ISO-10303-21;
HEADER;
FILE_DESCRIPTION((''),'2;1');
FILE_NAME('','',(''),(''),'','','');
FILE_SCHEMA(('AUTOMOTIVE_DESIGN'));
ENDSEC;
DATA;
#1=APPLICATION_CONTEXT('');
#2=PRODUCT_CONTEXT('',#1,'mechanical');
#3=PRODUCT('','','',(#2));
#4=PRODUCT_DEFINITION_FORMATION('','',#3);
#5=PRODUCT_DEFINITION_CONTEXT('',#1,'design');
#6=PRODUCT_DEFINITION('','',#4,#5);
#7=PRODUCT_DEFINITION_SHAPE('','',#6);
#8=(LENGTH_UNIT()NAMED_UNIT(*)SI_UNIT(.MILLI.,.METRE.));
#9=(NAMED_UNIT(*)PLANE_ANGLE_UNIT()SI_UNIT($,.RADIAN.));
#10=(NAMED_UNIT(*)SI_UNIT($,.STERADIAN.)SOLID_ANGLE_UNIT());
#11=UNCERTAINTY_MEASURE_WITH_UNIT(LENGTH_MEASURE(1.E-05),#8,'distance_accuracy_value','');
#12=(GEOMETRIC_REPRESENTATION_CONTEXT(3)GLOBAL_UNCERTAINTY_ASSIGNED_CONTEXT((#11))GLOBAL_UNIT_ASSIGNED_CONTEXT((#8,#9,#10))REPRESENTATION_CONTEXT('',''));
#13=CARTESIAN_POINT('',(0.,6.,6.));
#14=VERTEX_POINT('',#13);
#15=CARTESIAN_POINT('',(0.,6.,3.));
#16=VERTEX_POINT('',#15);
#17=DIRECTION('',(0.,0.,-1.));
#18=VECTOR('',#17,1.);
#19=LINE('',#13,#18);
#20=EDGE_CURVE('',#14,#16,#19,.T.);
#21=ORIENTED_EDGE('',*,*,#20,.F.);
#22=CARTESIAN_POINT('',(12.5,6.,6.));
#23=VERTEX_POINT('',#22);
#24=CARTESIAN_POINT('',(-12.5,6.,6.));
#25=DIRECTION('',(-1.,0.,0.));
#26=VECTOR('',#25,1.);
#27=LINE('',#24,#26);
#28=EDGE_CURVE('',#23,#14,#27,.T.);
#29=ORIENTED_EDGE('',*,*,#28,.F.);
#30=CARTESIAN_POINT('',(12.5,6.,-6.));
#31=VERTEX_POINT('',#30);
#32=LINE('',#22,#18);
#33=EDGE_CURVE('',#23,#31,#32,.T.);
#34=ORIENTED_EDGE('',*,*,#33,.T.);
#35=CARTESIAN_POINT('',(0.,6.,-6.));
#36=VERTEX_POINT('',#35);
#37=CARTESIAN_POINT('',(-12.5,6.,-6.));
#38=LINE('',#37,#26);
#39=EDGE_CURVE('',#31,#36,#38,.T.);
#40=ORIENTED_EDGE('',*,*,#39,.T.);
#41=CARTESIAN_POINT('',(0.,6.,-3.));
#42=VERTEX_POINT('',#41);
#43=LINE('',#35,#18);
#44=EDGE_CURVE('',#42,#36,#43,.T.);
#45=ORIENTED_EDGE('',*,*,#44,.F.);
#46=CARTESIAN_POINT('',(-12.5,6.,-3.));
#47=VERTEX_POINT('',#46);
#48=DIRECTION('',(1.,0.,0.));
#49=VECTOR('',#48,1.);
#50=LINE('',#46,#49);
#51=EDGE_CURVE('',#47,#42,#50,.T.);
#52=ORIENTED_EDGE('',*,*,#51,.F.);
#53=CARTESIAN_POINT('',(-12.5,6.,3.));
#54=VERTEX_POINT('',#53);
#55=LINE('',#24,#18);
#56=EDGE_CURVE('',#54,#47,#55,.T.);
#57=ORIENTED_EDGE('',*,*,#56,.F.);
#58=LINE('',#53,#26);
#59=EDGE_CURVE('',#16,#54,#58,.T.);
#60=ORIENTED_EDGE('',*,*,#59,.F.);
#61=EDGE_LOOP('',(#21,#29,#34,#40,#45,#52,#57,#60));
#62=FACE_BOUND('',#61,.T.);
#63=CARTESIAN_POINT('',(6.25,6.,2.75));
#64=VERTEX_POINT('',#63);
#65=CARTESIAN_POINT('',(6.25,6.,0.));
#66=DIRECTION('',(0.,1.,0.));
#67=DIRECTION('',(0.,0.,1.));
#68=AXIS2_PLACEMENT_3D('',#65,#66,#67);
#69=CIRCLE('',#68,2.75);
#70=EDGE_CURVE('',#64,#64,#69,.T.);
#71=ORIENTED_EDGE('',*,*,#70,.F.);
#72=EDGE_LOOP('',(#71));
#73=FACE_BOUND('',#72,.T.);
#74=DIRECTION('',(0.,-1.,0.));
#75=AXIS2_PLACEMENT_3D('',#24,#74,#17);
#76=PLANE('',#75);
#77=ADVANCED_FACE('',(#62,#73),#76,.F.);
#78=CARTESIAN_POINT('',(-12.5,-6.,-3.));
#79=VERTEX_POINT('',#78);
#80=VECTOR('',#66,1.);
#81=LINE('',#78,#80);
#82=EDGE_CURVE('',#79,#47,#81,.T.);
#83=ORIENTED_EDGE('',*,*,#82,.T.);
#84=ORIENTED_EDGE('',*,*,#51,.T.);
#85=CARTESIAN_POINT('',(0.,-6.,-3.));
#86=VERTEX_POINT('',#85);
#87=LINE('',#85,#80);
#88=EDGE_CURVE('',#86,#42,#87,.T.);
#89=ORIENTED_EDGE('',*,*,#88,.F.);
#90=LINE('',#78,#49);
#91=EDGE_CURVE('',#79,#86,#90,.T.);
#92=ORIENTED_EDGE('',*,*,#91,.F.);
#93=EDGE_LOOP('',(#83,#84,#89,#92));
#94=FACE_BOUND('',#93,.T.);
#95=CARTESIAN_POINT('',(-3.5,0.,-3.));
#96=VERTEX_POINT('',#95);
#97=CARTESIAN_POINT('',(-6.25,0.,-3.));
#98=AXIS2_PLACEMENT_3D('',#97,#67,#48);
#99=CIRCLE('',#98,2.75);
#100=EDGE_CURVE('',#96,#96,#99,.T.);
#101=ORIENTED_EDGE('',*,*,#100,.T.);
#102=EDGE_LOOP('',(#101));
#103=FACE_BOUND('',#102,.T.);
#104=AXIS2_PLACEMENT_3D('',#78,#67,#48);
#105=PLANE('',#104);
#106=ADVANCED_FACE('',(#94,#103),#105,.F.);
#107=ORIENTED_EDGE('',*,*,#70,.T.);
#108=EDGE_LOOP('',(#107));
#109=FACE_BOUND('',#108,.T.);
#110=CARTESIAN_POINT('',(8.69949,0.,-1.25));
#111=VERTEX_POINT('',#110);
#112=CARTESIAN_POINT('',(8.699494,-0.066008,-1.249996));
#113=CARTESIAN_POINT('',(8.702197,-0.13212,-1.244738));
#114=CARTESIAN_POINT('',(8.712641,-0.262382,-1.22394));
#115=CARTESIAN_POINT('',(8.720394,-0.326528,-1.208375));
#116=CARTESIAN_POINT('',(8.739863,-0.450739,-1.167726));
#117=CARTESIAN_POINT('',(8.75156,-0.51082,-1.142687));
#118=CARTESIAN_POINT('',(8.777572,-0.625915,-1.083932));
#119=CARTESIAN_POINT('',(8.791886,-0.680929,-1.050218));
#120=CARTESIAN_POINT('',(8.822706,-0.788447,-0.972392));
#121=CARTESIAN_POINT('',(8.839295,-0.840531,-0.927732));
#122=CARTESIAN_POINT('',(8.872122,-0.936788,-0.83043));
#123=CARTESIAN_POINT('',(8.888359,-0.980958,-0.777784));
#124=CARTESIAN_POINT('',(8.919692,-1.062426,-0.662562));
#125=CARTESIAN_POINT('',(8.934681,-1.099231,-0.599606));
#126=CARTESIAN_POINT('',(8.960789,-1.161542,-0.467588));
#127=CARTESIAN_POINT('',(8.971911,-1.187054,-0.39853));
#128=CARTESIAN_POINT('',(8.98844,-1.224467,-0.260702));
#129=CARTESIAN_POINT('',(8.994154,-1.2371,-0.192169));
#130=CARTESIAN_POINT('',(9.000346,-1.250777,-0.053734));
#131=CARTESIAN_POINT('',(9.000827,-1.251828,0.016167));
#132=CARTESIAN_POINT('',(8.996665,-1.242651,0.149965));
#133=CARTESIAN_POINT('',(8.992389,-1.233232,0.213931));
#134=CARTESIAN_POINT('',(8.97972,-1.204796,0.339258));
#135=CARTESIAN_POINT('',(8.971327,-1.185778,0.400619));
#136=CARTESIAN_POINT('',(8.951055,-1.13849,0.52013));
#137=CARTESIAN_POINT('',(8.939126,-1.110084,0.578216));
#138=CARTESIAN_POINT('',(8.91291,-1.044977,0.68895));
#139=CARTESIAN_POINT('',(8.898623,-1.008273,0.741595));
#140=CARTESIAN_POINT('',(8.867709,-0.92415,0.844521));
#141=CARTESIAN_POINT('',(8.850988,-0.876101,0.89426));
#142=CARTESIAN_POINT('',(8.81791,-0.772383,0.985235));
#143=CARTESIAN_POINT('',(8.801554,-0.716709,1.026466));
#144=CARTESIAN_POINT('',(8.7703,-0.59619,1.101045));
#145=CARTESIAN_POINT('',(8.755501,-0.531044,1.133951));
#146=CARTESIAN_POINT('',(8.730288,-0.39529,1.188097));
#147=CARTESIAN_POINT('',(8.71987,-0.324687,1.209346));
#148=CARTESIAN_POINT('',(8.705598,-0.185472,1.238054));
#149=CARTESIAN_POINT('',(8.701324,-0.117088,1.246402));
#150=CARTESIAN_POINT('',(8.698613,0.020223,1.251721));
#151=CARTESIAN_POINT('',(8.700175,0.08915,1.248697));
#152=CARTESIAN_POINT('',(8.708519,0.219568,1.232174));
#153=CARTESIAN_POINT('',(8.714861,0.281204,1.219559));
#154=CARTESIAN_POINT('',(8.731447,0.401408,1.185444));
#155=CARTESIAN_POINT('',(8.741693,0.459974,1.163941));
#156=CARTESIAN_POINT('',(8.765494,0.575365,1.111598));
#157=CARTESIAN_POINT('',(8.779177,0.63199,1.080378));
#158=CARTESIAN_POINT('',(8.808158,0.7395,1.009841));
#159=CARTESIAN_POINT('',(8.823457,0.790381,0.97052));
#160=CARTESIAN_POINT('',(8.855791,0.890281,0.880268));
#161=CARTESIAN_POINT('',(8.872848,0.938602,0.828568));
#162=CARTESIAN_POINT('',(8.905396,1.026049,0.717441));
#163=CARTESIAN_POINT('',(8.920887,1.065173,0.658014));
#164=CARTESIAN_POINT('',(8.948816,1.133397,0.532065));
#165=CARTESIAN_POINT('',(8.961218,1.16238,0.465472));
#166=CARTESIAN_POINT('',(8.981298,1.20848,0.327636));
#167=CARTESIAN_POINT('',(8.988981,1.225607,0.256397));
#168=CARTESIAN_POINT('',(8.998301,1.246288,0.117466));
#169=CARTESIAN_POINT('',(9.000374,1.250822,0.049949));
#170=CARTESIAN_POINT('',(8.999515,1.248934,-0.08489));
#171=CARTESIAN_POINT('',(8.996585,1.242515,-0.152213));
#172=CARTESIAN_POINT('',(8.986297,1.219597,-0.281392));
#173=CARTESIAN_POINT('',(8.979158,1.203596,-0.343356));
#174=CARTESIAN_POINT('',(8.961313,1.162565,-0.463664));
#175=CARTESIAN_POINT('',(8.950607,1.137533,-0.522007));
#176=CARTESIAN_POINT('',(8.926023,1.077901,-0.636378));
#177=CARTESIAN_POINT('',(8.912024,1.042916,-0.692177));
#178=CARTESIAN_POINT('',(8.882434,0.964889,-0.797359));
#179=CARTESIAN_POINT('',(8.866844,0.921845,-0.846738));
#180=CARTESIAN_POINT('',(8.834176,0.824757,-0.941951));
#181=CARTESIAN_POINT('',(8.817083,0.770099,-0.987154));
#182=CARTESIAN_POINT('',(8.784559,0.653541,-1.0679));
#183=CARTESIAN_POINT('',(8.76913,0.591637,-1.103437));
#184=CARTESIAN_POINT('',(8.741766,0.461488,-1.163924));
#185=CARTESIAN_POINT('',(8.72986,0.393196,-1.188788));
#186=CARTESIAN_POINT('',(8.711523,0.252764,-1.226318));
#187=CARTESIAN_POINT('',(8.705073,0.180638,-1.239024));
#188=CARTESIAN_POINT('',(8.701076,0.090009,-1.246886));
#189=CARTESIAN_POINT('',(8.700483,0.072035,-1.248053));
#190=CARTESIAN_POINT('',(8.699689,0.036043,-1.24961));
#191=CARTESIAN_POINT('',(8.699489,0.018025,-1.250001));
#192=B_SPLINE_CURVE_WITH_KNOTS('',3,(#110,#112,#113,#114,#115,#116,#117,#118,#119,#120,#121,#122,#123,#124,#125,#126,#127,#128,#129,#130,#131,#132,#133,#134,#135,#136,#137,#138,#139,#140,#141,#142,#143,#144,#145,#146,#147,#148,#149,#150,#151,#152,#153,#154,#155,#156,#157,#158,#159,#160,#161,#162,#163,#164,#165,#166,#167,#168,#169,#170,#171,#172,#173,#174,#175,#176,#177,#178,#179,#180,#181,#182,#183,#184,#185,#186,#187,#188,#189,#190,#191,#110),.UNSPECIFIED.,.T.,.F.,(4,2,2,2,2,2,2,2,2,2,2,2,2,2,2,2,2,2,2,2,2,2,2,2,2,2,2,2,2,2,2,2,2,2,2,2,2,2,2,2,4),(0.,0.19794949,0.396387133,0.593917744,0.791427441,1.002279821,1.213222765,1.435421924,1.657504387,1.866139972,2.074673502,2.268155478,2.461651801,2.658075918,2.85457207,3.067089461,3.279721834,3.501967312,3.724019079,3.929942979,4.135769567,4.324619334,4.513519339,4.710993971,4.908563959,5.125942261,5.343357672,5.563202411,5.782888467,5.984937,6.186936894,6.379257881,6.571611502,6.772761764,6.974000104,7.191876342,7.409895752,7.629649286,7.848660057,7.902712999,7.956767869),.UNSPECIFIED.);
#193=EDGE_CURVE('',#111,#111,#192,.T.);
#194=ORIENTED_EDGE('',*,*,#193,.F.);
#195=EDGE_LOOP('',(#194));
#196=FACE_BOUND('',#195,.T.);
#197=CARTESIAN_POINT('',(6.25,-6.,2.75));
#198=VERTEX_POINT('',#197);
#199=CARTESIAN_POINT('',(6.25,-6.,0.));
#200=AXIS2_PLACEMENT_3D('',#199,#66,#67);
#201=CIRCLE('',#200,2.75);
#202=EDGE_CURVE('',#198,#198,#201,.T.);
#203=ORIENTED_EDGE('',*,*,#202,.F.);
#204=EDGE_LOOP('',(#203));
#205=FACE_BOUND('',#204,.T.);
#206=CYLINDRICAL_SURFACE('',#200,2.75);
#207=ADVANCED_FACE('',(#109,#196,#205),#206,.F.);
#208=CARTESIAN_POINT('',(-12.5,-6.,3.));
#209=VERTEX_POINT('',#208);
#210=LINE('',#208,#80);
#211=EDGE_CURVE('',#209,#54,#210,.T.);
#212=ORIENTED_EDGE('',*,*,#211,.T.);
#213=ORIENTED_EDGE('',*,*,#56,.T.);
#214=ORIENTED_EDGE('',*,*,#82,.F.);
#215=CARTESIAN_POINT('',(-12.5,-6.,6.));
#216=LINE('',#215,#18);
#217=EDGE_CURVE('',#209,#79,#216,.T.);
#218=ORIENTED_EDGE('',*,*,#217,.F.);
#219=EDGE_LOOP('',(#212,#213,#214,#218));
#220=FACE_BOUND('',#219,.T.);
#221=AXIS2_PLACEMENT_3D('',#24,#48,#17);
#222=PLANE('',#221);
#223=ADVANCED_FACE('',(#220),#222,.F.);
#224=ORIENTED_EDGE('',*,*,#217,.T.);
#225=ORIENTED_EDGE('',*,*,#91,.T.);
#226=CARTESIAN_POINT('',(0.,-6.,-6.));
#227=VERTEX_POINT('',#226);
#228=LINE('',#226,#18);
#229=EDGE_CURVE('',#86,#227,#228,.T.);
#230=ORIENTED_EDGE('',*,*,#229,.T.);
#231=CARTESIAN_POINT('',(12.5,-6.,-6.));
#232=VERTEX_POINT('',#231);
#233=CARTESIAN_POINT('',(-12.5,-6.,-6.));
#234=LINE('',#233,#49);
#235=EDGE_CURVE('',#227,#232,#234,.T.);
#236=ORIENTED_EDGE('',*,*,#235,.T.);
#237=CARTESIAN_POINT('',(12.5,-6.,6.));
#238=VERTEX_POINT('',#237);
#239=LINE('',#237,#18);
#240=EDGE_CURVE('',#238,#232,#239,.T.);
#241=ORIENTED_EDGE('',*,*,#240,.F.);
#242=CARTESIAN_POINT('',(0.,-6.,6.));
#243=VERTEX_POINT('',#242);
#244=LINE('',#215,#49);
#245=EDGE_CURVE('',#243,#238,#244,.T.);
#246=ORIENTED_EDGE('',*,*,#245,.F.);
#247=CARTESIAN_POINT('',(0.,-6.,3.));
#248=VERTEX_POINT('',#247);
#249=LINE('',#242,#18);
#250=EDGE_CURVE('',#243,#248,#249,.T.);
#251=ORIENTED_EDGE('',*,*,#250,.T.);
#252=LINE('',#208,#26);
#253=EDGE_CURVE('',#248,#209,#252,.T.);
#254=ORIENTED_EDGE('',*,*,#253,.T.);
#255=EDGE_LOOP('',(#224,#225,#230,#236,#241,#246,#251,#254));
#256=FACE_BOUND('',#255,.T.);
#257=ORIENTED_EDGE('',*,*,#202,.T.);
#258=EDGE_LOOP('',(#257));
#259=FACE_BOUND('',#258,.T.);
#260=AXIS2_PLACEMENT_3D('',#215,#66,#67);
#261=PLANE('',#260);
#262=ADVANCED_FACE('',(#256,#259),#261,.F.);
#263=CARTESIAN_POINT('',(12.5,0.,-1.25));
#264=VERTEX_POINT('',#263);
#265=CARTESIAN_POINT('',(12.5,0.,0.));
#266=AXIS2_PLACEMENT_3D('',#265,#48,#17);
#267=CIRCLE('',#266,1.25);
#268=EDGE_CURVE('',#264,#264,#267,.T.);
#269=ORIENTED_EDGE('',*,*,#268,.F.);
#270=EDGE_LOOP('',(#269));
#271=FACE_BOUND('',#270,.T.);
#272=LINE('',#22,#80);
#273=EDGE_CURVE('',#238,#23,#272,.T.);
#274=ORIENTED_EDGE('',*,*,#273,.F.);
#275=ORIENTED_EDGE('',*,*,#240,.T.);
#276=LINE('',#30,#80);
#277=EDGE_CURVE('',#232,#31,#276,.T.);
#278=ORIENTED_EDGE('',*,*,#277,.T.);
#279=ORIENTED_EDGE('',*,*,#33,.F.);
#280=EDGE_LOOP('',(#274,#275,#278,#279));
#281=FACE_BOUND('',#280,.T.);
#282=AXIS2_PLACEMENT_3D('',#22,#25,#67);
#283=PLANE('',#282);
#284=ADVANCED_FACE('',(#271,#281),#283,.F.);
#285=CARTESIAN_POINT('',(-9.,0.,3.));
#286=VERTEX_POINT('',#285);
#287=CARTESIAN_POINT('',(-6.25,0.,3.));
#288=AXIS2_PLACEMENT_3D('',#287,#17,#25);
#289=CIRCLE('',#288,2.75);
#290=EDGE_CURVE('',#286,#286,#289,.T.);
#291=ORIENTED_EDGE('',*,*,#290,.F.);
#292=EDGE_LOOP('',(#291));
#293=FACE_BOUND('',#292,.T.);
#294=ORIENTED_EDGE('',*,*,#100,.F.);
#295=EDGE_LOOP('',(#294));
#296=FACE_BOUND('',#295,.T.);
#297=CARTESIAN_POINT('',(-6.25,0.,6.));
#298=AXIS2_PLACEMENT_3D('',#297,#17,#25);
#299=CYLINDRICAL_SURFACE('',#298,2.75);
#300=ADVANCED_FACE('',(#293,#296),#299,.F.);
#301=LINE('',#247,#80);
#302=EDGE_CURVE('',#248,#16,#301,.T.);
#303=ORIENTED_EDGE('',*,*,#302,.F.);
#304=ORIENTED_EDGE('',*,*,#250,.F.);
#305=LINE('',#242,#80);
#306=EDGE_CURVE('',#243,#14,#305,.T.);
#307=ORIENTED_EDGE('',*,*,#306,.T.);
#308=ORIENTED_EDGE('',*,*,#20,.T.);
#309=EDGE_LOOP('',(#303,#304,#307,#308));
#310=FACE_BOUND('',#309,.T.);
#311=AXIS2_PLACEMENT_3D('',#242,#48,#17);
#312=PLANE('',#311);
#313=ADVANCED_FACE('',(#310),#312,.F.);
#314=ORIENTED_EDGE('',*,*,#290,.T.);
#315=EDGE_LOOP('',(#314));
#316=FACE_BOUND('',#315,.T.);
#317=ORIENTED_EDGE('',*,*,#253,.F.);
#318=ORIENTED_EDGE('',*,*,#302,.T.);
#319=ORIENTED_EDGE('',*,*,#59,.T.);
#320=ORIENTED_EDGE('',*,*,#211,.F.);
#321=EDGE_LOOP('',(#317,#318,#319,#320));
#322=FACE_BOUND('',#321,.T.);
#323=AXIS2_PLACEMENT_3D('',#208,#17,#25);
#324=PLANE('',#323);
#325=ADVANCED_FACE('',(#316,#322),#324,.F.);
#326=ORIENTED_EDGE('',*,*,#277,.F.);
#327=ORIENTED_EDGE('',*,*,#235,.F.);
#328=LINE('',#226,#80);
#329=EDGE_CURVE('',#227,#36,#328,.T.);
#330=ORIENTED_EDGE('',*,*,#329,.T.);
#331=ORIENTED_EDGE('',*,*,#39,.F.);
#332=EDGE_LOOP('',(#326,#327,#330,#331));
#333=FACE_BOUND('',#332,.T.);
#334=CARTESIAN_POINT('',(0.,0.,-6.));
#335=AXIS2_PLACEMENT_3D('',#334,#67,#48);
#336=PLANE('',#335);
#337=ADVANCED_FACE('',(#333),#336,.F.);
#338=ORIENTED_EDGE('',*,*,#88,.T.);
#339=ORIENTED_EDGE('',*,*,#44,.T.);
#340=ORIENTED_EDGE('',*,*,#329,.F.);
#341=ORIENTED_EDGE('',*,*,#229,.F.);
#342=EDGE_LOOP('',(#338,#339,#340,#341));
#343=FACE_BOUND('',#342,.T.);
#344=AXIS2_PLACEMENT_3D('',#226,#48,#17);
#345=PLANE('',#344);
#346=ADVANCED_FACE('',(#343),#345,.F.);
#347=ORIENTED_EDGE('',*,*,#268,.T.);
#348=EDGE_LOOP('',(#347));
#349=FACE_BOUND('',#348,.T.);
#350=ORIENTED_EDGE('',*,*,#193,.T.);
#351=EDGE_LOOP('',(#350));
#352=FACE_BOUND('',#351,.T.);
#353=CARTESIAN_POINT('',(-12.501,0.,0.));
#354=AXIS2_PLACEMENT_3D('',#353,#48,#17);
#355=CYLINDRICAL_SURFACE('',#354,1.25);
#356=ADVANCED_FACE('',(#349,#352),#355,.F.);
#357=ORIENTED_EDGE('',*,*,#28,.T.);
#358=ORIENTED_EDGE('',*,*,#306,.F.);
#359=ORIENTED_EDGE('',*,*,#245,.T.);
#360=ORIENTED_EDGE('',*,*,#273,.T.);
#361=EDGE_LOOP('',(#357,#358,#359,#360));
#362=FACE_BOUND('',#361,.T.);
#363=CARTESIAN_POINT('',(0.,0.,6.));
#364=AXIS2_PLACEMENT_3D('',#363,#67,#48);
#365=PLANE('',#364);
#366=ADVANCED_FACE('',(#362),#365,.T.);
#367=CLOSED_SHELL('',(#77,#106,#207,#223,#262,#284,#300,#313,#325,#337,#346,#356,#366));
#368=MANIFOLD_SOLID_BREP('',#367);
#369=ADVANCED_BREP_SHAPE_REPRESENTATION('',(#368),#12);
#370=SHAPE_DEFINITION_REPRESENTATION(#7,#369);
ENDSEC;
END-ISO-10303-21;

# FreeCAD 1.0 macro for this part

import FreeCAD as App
import Part
import Sketcher
from FreeCAD import Vector
Q = App.Units.Quantity


def add_polygon(sketch, points):
    """Adds a closed chain of lines whose ends are joined by coincident constraints."""
    first, n = sketch.GeometryCount, len(points)
    for a, b in zip(points, points[1:] + points[:1]):
        sketch.addGeometry(Part.LineSegment(App.Vector(*a, 0), App.Vector(*b, 0)), False)
    for i in range(n):
        sketch.addConstraint(Sketcher.Constraint("Coincident", first + i, 2, first + (i + 1) % n, 1))

doc = App.newDocument("Part")
body = doc.addObject("PartDesign::Body", "Body")

sketch1 = body.newObject("Sketcher::SketchObject", "Sketch")
sketch1.AttachmentSupport = (doc.getObject("XY_Plane"), [""])
sketch1.MapMode = "FlatFace"
add_polygon(sketch1, [(-12.5, 6), (-12.5, -6), (12.5, -6), (12.5, 6)])
sketch1.addGeometry(Part.Circle(Vector(-6.2, 0, 0), Vector(0, 0, 1), 2.8), False)
sketch1.addConstraint([
    Sketcher.Constraint("Vertical", 0),
    Sketcher.Constraint("Horizontal", 1),
    Sketcher.Constraint("Vertical", 2),
    Sketcher.Constraint("Horizontal", 3),
    Sketcher.Constraint("Symmetric", 0, 2, 2, 2, -1, 1),
    Sketcher.Constraint("PointOnObject", 4, 3, -1),
    Sketcher.Constraint("Diameter", 4, Q("5.5 mm")),
    Sketcher.Constraint("DistanceX", 1, 1, 1, 2, Q("25 mm")),
    Sketcher.Constraint("DistanceY", 0, 2, 0, 1, Q("12 mm")),
    Sketcher.Constraint("DistanceX", 4, 3, -1, 1, Q("6.25 mm")),
])
pad1 = body.newObject("PartDesign::Pad", "Pad")
pad1.Profile = sketch1
pad1.Length = 12
pad1.Midplane = True

sketch2 = body.newObject("Sketcher::SketchObject", "Sketch001")
sketch2.AttachmentSupport = (doc.getObject("XZ_Plane"), [""])
sketch2.MapMode = "FlatFace"
sketch2.AttachmentOffset = App.Placement(Vector(0, 0, -6), App.Rotation())
sketch2.addGeometry(Part.Circle(Vector(6.2, 0, 0), Vector(0, 0, 1), 2.8), False)
add_polygon(sketch2, [(-12.5, -6), (-12.5, -3), (0, -3), (0, -6)])
add_polygon(sketch2, [(-12.5, 3), (-12.5, 6), (0, 6), (0, 3)])
sketch2.addConstraint([
    Sketcher.Constraint("Vertical", 1),
    Sketcher.Constraint("Horizontal", 2),
    Sketcher.Constraint("Vertical", 3),
    Sketcher.Constraint("Horizontal", 4),
    Sketcher.Constraint("Vertical", 5),
    Sketcher.Constraint("Horizontal", 6),
    Sketcher.Constraint("Vertical", 7),
    Sketcher.Constraint("Horizontal", 8),
    Sketcher.Constraint("Symmetric", 3, 2, 6, 2, -1, 1),
    Sketcher.Constraint("Symmetric", 2, 2, 7, 2, -1),
    Sketcher.Constraint("PointOnObject", 0, 3, -1),
    Sketcher.Constraint("Vertical", 4, 2, 5, 2),
    Sketcher.Constraint("Diameter", 0, Q("5.5 mm")),
    Sketcher.Constraint("DistanceY", 1, 1, 1, 2, Q("3 mm")),
    Sketcher.Constraint("DistanceX", 2, 1, 2, 2, Q("12.5 mm")),
    Sketcher.Constraint("DistanceY", 1, 2, -1, 1, Q("3 mm")),
    Sketcher.Constraint("DistanceX", -1, 1, 0, 3, Q("6.25 mm")),
])
pocket1 = body.newObject("PartDesign::Pocket", "Pocket")
pocket1.Profile = sketch2
pocket1.Type = "ThroughAll"
pocket1.Reversed = True

sketch3 = body.newObject("Sketcher::SketchObject", "Sketch002")
sketch3.AttachmentSupport = (doc.getObject("YZ_Plane"), [""])
sketch3.MapMode = "FlatFace"
sketch3.AttachmentOffset = App.Placement(Vector(0, 0, 12.5), App.Rotation())
sketch3.addGeometry(Part.Circle(Vector(0, 0, 0), Vector(0, 0, 1), 1.2), False)
sketch3.addConstraint([
    Sketcher.Constraint("Coincident", 0, 3, -1, 1),
    Sketcher.Constraint("Diameter", 0, Q("2.5 mm")),
])
pocket2 = body.newObject("PartDesign::Pocket", "Pocket001")
pocket2.Profile = sketch3
pocket2.Length = 3.80051

doc.recompute()
